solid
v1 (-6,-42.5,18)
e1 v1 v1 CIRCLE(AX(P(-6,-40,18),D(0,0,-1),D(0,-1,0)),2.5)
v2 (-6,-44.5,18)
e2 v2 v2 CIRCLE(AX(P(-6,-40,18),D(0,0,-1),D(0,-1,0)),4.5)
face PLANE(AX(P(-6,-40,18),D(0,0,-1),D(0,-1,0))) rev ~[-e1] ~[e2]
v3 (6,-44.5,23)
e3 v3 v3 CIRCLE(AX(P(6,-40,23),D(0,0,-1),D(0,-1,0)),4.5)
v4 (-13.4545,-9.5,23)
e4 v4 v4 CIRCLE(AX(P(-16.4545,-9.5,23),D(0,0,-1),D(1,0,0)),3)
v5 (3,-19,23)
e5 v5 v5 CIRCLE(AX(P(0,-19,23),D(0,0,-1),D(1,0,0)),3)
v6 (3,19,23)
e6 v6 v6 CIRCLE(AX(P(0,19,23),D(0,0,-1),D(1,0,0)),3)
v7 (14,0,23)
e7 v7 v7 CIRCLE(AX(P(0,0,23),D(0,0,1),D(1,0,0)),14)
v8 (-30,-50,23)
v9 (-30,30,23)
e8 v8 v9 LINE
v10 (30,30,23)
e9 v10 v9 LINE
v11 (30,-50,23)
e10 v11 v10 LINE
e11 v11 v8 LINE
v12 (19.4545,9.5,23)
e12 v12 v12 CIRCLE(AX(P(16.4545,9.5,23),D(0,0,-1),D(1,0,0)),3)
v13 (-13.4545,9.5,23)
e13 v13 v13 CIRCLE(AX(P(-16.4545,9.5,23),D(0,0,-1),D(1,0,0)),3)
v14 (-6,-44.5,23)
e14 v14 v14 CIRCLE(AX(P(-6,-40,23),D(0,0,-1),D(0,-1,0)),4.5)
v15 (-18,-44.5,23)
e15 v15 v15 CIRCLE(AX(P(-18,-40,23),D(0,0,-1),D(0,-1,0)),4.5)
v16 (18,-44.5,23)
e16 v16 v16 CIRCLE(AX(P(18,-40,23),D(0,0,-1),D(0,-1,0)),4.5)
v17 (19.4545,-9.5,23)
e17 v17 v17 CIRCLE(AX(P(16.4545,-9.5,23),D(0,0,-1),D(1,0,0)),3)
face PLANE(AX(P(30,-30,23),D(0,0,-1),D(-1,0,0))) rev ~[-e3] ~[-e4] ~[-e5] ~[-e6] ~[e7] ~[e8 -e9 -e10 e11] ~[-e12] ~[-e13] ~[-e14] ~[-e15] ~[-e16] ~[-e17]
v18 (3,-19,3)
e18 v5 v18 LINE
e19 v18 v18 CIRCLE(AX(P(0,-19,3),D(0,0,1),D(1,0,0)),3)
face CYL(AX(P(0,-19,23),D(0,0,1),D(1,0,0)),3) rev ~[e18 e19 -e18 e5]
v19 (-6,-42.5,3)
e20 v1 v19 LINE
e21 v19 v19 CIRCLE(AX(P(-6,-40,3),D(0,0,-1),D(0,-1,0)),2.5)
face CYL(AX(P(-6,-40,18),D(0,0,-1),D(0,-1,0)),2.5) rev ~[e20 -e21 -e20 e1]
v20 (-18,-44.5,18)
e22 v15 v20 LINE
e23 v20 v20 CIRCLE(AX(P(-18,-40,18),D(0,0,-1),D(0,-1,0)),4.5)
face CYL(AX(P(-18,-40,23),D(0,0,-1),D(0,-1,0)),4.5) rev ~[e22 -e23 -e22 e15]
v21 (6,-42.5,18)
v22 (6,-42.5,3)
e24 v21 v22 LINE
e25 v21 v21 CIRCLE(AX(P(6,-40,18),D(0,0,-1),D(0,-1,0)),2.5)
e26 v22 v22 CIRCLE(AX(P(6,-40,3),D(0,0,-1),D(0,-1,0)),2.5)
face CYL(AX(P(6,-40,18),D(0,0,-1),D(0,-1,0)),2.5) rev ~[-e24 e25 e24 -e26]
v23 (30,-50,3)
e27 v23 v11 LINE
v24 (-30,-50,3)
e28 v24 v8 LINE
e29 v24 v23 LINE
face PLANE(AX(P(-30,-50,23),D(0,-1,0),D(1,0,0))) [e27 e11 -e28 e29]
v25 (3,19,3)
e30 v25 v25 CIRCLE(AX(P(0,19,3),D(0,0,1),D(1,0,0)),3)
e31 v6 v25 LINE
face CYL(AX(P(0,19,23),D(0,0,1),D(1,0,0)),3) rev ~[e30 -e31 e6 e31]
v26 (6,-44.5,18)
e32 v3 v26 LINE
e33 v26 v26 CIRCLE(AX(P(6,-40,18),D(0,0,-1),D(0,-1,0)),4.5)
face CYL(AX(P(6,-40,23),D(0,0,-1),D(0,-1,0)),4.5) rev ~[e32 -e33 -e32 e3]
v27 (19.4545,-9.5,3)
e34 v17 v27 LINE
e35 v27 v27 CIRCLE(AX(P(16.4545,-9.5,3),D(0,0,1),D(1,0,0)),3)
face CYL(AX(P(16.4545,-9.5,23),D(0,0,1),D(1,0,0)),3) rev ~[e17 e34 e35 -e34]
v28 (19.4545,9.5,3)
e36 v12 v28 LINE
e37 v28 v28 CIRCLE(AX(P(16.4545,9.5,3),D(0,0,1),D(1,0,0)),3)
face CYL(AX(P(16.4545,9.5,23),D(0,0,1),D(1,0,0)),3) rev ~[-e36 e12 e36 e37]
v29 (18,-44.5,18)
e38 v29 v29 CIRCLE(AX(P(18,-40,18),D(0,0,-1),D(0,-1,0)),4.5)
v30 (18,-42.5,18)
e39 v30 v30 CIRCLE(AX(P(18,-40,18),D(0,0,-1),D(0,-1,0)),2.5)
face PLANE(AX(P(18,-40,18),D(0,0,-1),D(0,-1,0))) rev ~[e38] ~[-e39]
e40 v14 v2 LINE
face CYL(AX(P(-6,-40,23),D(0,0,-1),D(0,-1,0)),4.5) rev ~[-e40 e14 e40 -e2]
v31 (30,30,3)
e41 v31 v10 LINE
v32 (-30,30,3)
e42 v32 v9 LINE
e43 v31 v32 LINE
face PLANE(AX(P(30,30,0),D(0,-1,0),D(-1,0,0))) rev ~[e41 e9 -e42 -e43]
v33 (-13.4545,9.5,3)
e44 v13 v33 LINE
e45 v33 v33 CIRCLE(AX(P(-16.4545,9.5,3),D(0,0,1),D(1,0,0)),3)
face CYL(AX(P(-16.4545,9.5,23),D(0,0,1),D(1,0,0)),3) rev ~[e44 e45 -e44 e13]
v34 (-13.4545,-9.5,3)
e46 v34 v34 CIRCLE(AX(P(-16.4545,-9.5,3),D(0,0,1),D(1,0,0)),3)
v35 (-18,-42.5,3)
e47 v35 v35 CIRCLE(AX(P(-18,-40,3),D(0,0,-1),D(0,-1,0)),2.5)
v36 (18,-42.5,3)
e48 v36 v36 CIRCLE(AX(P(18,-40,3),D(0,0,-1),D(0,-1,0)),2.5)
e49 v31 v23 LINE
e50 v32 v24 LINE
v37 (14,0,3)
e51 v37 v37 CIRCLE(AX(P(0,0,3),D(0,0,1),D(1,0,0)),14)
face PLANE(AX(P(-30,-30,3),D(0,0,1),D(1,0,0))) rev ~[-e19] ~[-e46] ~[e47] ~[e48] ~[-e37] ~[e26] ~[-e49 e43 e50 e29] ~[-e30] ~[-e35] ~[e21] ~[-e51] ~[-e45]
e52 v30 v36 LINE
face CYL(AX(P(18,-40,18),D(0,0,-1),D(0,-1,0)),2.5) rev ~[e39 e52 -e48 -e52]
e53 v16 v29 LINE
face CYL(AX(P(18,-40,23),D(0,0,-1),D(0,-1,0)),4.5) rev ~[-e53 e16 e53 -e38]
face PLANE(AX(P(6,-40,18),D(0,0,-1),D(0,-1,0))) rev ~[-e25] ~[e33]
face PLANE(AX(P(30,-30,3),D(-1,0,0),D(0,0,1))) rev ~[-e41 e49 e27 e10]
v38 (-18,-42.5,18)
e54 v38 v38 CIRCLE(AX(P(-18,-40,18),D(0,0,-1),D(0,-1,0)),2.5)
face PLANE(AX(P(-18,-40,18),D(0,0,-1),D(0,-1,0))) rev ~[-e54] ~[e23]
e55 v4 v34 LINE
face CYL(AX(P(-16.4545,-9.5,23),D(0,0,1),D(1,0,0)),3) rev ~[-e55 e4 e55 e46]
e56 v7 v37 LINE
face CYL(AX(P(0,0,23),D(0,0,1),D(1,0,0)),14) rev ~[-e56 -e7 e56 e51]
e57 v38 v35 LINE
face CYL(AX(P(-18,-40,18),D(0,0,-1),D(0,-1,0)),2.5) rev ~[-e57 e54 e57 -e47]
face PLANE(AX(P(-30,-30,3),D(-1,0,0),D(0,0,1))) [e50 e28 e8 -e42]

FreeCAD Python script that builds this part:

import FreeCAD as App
import Part
import Sketcher
from FreeCAD import Vector

doc = App.newDocument("Part")
body = doc.addObject("PartDesign::Body", "Body")

# Sketch on XY plane
sketch1 = doc.addObject("Sketcher::SketchObject", "Sketch")
body.addObject(sketch1)
sketch1.AttachmentSupport = (doc.XY_Plane, [""])
sketch1.MapMode = "FlatFace"
sketch1.addGeometry([
    Part.LineSegment(Vector(-30, 30, 0), Vector(-30, -30, 0)),
    Part.LineSegment(Vector(-30, -30, 0), Vector(30, -30, 0)),
    Part.LineSegment(Vector(30, -30, 0), Vector(30, 30, 0)),
    Part.LineSegment(Vector(30, 30, 0), Vector(-30, 30, 0)),
], False)
sketch1.addConstraint([
    Sketcher.Constraint("Coincident", 0, 2, 1, 1),
    Sketcher.Constraint("Coincident", 1, 2, 2, 1),
    Sketcher.Constraint("Coincident", 2, 2, 3, 1),
    Sketcher.Constraint("Coincident", 3, 2, 0, 1),
    Sketcher.Constraint("Vertical", 0),
    Sketcher.Constraint("Horizontal", 1),
    Sketcher.Constraint("Vertical", 2),
    Sketcher.Constraint("Horizontal", 3),
    Sketcher.Constraint("Symmetric", 0, 2, 2, 2, -1, 1),
    Sketcher.Constraint("Equal", 3, 0),
    Sketcher.Constraint("DistanceX", 1, 1, 1, 2, 60.0),
])
pad1 = doc.addObject("PartDesign::Pad", "Pad")
body.addObject(pad1)
pad1.Profile = sketch1
pad1.Length = 35

# Sketch on XY plane
sketch2 = doc.addObject("Sketcher::SketchObject", "Sketch001")
body.addObject(sketch2)
sketch2.AttachmentSupport = (doc.XY_Plane, [""])
sketch2.MapMode = "FlatFace"
sketch2.AttachmentOffset = App.Placement(Vector(0, 0, 35), App.Rotation())
sketch2.addGeometry(Part.Circle(Vector(0, 0, 0), Vector(0, 0, 1), 25), False)
sketch2.addConstraint([
    Sketcher.Constraint("Coincident", 0, 3, -1, 1),
    Sketcher.Constraint("Diameter", 0, 50.0),
])
pocket1 = doc.addObject("PartDesign::Pocket", "Pocket")
body.addObject(pocket1)
pocket1.Profile = sketch2
pocket1.Length = 12

# Sketch on XY plane
sketch3 = doc.addObject("Sketcher::SketchObject", "Sketch002")
body.addObject(sketch3)
sketch3.AttachmentSupport = (doc.XY_Plane, [""])
sketch3.MapMode = "FlatFace"
sketch3.AttachmentOffset = App.Placement(Vector(0, 0, 23), App.Rotation())
sketch3.addGeometry(Part.Circle(Vector(0, 0, 0), Vector(0, 0, 1), 14), False)
sketch3.addConstraint([
    Sketcher.Constraint("Coincident", 0, 3, -1, 1),
    Sketcher.Constraint("Diameter", 0, 28.0),
])
pocket2 = doc.addObject("PartDesign::Pocket", "Pocket001")
body.addObject(pocket2)
pocket2.Profile = sketch3
pocket2.Type = "UpToFirst"

# Sketch on XY plane
sketch4 = doc.addObject("Sketcher::SketchObject", "Sketch003")
body.addObject(sketch4)
sketch4.AttachmentSupport = (doc.XY_Plane, [""])
sketch4.MapMode = "FlatFace"
sketch4.AttachmentOffset = App.Placement(Vector(0, 0, 35), App.Rotation())
sketch4.addGeometry([
    Part.LineSegment(Vector(-30, 30, 0), Vector(-30, -30, 0)),  # 0
    Part.LineSegment(Vector(-30, -30, 0), Vector(30, -30, 0)),  # 1
    Part.LineSegment(Vector(30, -30, 0), Vector(30, 30, 0)),  # 2
    Part.LineSegment(Vector(30, 30, 0), Vector(-30, 30, 0)),  # 3
    Part.Circle(Vector(0, 0, 0), Vector(0, 0, 1), 25),  # 4
], False)
sketch4.addConstraint([
    Sketcher.Constraint("Coincident", 0, 2, 1, 1),
    Sketcher.Constraint("Coincident", 1, 2, 2, 1),
    Sketcher.Constraint("Coincident", 2, 2, 3, 1),
    Sketcher.Constraint("Coincident", 3, 2, 0, 1),
    Sketcher.Constraint("Vertical", 0),
    Sketcher.Constraint("Horizontal", 1),
    Sketcher.Constraint("Vertical", 2),
    Sketcher.Constraint("Horizontal", 3),
    Sketcher.Constraint("Coincident", 4, 3, -1, 1),
    Sketcher.Constraint("Symmetric", 0, 2, 2, 2, -1, 1),
    Sketcher.Constraint("Equal", 3, 0),
    Sketcher.Constraint("Diameter", 4, 50.0),
    Sketcher.Constraint("DistanceX", 1, 1, 1, 2, 60.0),
])
pocket3 = doc.addObject("PartDesign::Pocket", "Pocket002")
body.addObject(pocket3)
pocket3.Profile = sketch4
pocket3.Length = 12

# Sketch on XY plane
sketch5 = doc.addObject("Sketcher::SketchObject", "Sketch004")
body.addObject(sketch5)
sketch5.AttachmentSupport = (doc.XY_Plane, [""])
sketch5.MapMode = "FlatFace"
sketch5.AttachmentOffset = App.Placement(Vector(0, 0, 23), App.Rotation())
sketch5.addGeometry([
    Part.Circle(Vector(16.5, 9.5, 0), Vector(0, 0, 1), 3),  # 0
    Part.Circle(Vector(16.5, -9.5, 0), Vector(0, 0, 1), 3),  # 1
    Part.Circle(Vector(0, 19, 0), Vector(0, 0, 1), 3),  # 2
    Part.Circle(Vector(0, -19, 0), Vector(0, 0, 1), 3),  # 3
    Part.Circle(Vector(-16.5, 9.5, 0), Vector(0, 0, 1), 3),  # 4
    Part.Circle(Vector(-16.5, -9.5, 0), Vector(0, 0, 1), 3),  # 5
], False)
sketch5.addConstraint([
    Sketcher.Constraint("Equal", 0, 1),
    Sketcher.Constraint("Equal", 1, 2),
    Sketcher.Constraint("Equal", 2, 3),
    Sketcher.Constraint("Equal", 3, 4),
    Sketcher.Constraint("Equal", 4, 5),
    Sketcher.Constraint("Symmetric", 2, 3, 3, 3, -1, 1),
    Sketcher.Constraint("Symmetric", 1, 3, 4, 3, -1, 1),
    Sketcher.Constraint("Symmetric", 0, 3, 5, 3, -1, 1),
    Sketcher.Constraint("Symmetric", 0, 3, 4, 3, -2),
    Sketcher.Constraint("PointOnObject", 2, 3, -2),
    Sketcher.Constraint("Diameter", 0, 6.0),
    Sketcher.Constraint("DistanceY", 3, 3, 2, 3, 38.0),
    Sketcher.Constraint("DistanceY", 1, 3, 0, 3, 19.0),
    Sketcher.Constraint("DistanceX", 4, 3, 0, 3, 32.909),
])
pocket4 = doc.addObject("PartDesign::Pocket", "Pocket003")
body.addObject(pocket4)
pocket4.Profile = sketch5
pocket4.Length = 23

# Sketch on XY plane
sketch6 = doc.addObject("Sketcher::SketchObject", "Sketch005")
body.addObject(sketch6)
sketch6.AttachmentSupport = (doc.XY_Plane, [""])
sketch6.MapMode = "FlatFace"
sketch6.addGeometry([
    Part.LineSegment(Vector(30, -30, 0), Vector(-30, -30, 0)),  # 0
    Part.LineSegment(Vector(-30, -30, 0), Vector(-30, 30, 0)),  # 1
    Part.LineSegment(Vector(-30, 30, 0), Vector(30, 30, 0)),  # 2
    Part.LineSegment(Vector(30, 30, 0), Vector(30, -30, 0)),  # 3
    Part.Circle(Vector(0, 0, 0), Vector(0, 0, 1), 14),  # 4
], False)
sketch6.addConstraint([
    Sketcher.Constraint("Coincident", 0, 2, 1, 1),
    Sketcher.Constraint("Coincident", 1, 2, 2, 1),
    Sketcher.Constraint("Coincident", 2, 2, 3, 1),
    Sketcher.Constraint("Coincident", 3, 2, 0, 1),
    Sketcher.Constraint("Horizontal", 0),
    Sketcher.Constraint("Vertical", 1),
    Sketcher.Constraint("Horizontal", 2),
    Sketcher.Constraint("Vertical", 3),
    Sketcher.Constraint("Coincident", 4, 3, -1, 1),
    Sketcher.Constraint("Symmetric", 0, 2, 2, 2, -1, 1),
    Sketcher.Constraint("Equal", 2, 1),
    Sketcher.Constraint("Diameter", 4, 28.0),
    Sketcher.Constraint("DistanceX", 0, 2, 0, 1, 60.0),
])
pocket5 = doc.addObject("PartDesign::Pocket", "Pocket004")
body.addObject(pocket5)
pocket5.Profile = sketch6
pocket5.Length = 3
pocket5.Reversed = True

# Sketch on XZ plane
sketch7 = doc.addObject("Sketcher::SketchObject", "Sketch006")
body.addObject(sketch7)
sketch7.AttachmentSupport = (doc.XZ_Plane, [""])
sketch7.MapMode = "FlatFace"
sketch7.AttachmentOffset = App.Placement(Vector(0, 0, 30), App.Rotation())
sketch7.addGeometry([
    Part.LineSegment(Vector(-30, 23, 0), Vector(-30, 3, 0)),
    Part.LineSegment(Vector(-30, 3, 0), Vector(30, 3, 0)),
    Part.LineSegment(Vector(30, 3, 0), Vector(30, 23, 0)),
    Part.LineSegment(Vector(30, 23, 0), Vector(-30, 23, 0)),
], False)
sketch7.addConstraint([
    Sketcher.Constraint("Coincident", 0, 2, 1, 1),
    Sketcher.Constraint("Coincident", 1, 2, 2, 1),
    Sketcher.Constraint("Coincident", 2, 2, 3, 1),
    Sketcher.Constraint("Coincident", 3, 2, 0, 1),
    Sketcher.Constraint("Vertical", 0),
    Sketcher.Constraint("Horizontal", 1),
    Sketcher.Constraint("Vertical", 2),
    Sketcher.Constraint("Horizontal", 3),
    Sketcher.Constraint("DistanceX", 1, 1, 1, 2, 60.0),
    Sketcher.Constraint("DistanceY", 0, 2, 0, 1, 20.0),
    Sketcher.Constraint("DistanceX", 0, 2, -1, 1, 30.0),
    Sketcher.Constraint("DistanceY", -1, 1, 0, 2, 3.0),
])
pad2 = doc.addObject("PartDesign::Pad", "Pad001")
body.addObject(pad2)
pad2.Profile = sketch7
pad2.Length = 20

# Sketch on XY plane
sketch8 = doc.addObject("Sketcher::SketchObject", "Sketch007")
body.addObject(sketch8)
sketch8.AttachmentSupport = (doc.XY_Plane, [""])
sketch8.MapMode = "FlatFace"
sketch8.AttachmentOffset = App.Placement(Vector(0, 0, 23), App.Rotation())
sketch8.addGeometry([
    Part.Circle(Vector(-18, -40, 0), Vector(0, 0, 1), 2.5),
    Part.Circle(Vector(-6, -40, 0), Vector(0, 0, 1), 2.5),
    Part.Circle(Vector(6, -40, 0), Vector(0, 0, 1), 2.5),
    Part.Circle(Vector(18, -40, 0), Vector(0, 0, 1), 2.5),
], False)
sketch8.addConstraint([
    Sketcher.Constraint("Equal", 0, 1),
    Sketcher.Constraint("Equal", 1, 2),
    Sketcher.Constraint("Equal", 2, 3),
    Sketcher.Constraint("Symmetric", 1, 3, 2, 3, -2),
    Sketcher.Constraint("Symmetric", 0, 3, 3, 3, -2),
    Sketcher.Constraint("Horizontal", 0, 3, 1, 3),
    Sketcher.Constraint("Diameter", 0, 5.0),
    Sketcher.Constraint("DistanceX", 0, 3, -1, 1, 18.0),
    Sketcher.Constraint("DistanceY", 0, 3, -1, 1, 40.0),
    Sketcher.Constraint("DistanceX", 1, 3, -1, 1, 6.0),
])
doc.recompute()
hole = doc.addObject("PartDesign::Hole", "Hole")
body.addObject(hole)
hole.Profile = sketch8
hole.ThreadType = "None"
hole.Diameter = 5
hole.DepthType = "ThroughAll"
hole.HoleCutType = "Counterbore"
hole.HoleCutDiameter = 9
hole.HoleCutDepth = 5

doc.recompute()
